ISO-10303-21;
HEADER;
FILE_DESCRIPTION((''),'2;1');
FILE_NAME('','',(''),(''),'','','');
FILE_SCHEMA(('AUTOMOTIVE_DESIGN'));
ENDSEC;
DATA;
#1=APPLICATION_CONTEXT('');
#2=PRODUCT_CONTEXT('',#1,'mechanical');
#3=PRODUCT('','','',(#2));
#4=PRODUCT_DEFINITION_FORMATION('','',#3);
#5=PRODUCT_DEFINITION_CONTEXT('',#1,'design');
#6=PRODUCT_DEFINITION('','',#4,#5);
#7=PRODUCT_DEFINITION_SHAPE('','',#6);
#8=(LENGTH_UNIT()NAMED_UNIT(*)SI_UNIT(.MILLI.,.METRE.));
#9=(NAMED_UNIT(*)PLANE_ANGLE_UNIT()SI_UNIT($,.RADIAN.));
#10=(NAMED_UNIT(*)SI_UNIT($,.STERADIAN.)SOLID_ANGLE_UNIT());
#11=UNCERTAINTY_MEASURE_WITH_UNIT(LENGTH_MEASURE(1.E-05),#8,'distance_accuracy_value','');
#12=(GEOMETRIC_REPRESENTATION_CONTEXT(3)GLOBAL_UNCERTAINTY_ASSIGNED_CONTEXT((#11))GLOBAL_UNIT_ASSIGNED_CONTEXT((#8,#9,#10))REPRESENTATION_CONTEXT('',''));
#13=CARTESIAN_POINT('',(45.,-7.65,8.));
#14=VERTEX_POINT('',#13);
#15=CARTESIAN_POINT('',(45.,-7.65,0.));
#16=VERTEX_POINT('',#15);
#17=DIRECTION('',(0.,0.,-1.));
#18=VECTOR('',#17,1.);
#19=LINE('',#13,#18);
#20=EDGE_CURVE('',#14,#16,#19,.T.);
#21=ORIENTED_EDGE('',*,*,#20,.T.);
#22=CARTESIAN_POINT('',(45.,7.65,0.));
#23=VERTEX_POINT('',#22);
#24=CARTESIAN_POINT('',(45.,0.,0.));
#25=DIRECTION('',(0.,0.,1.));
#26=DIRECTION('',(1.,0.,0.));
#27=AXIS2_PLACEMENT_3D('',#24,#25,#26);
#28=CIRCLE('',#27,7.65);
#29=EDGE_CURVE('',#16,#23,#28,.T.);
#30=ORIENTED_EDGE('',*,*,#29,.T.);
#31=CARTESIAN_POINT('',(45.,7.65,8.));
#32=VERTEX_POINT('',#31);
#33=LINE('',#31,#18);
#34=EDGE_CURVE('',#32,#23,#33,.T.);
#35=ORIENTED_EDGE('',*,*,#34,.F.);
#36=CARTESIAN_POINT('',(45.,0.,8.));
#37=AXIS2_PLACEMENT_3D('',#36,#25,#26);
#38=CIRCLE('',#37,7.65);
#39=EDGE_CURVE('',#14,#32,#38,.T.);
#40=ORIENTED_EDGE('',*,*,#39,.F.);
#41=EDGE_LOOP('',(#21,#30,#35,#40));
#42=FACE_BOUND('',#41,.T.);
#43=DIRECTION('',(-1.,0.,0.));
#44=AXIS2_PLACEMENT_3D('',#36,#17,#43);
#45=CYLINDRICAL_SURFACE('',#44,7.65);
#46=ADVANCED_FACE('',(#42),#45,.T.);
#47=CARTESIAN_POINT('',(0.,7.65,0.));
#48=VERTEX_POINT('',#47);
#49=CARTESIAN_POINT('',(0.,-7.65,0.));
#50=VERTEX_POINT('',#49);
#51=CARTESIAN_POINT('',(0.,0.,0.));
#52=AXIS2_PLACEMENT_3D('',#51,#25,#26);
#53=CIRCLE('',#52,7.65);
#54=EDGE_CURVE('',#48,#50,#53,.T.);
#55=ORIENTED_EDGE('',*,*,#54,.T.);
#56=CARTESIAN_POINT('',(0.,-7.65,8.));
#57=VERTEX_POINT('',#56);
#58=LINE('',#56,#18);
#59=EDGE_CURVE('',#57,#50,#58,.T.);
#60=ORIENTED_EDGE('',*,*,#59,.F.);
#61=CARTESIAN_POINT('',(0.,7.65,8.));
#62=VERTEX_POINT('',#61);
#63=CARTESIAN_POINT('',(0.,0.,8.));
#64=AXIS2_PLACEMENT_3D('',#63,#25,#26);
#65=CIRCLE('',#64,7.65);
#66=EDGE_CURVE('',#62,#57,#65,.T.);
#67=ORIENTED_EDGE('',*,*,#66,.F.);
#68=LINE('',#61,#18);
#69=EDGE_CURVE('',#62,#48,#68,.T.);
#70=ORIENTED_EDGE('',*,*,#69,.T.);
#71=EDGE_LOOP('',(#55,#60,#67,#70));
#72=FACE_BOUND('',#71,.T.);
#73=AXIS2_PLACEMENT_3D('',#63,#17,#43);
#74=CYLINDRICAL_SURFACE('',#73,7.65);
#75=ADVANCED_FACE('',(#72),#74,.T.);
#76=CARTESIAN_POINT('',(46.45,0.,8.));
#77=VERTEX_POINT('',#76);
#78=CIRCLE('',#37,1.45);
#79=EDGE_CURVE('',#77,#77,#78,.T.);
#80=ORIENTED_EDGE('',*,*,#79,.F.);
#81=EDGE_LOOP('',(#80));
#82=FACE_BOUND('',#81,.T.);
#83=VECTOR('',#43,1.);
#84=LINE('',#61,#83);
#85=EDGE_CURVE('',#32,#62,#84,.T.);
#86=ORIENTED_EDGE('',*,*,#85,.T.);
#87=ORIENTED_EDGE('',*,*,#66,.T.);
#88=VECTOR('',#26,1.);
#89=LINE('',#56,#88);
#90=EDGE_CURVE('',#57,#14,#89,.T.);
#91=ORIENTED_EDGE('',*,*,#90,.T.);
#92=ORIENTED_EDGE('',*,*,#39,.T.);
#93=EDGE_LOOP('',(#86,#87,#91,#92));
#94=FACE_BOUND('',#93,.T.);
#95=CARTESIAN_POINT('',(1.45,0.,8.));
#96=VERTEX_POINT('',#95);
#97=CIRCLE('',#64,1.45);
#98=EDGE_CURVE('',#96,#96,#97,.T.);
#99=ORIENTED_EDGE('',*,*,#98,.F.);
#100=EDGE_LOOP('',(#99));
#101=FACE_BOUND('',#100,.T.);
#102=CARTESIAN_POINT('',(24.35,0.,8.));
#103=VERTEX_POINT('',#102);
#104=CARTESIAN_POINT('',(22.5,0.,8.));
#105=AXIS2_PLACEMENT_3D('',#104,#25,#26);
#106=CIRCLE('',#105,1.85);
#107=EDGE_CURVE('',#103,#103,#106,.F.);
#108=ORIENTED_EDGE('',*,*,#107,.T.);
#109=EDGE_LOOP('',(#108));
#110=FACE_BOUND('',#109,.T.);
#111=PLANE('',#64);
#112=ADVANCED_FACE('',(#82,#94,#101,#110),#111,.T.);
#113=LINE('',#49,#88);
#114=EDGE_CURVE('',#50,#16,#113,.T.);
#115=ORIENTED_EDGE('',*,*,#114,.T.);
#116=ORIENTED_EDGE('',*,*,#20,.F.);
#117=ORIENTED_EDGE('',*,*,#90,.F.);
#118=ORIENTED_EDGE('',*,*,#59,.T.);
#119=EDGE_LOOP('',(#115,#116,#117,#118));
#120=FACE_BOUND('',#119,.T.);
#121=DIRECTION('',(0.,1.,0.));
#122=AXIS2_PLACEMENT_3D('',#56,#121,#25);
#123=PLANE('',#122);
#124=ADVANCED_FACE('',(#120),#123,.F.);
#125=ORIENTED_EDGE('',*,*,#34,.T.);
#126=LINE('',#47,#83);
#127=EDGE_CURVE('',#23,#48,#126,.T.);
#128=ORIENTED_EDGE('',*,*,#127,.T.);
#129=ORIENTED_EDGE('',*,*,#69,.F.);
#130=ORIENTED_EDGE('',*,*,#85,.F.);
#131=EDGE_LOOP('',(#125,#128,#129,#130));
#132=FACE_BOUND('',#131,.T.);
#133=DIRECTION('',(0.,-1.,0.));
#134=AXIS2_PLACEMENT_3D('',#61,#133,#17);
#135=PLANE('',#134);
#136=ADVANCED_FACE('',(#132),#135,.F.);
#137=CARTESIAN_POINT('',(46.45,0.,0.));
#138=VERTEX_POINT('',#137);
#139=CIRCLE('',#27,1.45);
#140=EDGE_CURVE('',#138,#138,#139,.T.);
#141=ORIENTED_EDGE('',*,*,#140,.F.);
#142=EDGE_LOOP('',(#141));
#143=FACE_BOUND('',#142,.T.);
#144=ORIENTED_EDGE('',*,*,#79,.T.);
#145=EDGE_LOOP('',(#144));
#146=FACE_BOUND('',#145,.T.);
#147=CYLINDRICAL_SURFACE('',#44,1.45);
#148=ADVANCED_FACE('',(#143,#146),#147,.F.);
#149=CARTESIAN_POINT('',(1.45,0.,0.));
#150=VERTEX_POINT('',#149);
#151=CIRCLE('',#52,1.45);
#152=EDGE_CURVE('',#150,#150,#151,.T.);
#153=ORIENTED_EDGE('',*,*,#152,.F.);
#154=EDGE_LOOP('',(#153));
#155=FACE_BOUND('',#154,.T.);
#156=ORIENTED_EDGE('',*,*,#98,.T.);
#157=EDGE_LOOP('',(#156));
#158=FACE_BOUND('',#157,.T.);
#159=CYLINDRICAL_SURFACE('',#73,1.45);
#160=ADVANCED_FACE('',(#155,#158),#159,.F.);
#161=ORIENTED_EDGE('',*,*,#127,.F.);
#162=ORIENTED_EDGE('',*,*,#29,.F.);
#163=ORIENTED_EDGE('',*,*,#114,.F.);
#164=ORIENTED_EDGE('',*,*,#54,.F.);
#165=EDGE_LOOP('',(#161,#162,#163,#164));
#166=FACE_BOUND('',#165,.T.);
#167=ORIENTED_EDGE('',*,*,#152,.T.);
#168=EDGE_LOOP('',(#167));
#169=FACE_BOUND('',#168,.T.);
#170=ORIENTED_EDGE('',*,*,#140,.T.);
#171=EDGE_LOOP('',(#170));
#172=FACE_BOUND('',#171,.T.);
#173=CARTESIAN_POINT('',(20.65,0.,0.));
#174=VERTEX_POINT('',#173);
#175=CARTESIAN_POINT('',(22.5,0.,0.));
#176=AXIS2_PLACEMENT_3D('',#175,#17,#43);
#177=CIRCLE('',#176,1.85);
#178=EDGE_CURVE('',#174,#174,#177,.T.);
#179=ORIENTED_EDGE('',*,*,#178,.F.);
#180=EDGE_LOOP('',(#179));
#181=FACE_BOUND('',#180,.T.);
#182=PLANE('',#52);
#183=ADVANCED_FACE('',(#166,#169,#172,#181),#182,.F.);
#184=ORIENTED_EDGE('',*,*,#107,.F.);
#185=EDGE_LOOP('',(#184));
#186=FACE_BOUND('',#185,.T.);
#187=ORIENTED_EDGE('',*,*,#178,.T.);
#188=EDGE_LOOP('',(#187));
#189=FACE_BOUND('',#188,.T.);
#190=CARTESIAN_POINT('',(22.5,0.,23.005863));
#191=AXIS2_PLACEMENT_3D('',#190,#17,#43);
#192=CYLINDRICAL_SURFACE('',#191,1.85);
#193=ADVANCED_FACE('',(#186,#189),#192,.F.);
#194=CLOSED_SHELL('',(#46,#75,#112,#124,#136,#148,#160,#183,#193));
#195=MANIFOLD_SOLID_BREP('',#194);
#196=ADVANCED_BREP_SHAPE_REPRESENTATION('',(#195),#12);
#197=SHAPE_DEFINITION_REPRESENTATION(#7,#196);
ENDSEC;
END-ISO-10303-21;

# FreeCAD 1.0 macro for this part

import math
import FreeCAD as App
import Part
import Sketcher
from FreeCAD import Vector

doc = App.newDocument("Part")
body = doc.addObject("PartDesign::Body", "Body")

# Sketch on XY plane
sketch1 = body.newObject("Sketcher::SketchObject", "Sketch")
sketch1.AttachmentSupport = (doc.getObject("XY_Plane"), [""])
sketch1.MapMode = "FlatFace"
sketch1.addGeometry([
    Part.LineSegment(Vector(45, 7.65, 0), Vector(0, 7.65, 0)),  # 0
    Part.ArcOfCircle(Part.Circle(Vector(0, 0, 0), Vector(0, 0, 1), 7.65), math.radians(90), math.radians(270)),  # 1
    Part.LineSegment(Vector(0, -7.65, 0), Vector(45, -7.65, 0)),  # 2
    Part.ArcOfCircle(Part.Circle(Vector(45, 0, 0), Vector(0, 0, 1), 7.65), math.radians(-90), math.radians(90)),  # 3
    Part.Circle(Vector(45, 0, 0), Vector(0, 0, 1), 1.45),  # 4
    Part.Circle(Vector(22.5, 0, 0), Vector(0, 0, 1), 5.15),  # 5
    Part.Circle(Vector(0, 0, 0), Vector(0, 0, 1), 1.45),  # 6
], False)
sketch1.addConstraint([
    Sketcher.Constraint("Tangent", 0, 2, 1, 1),
    Sketcher.Constraint("Tangent", 1, 2, 2, 1),
    Sketcher.Constraint("Tangent", 2, 2, 3, 1),
    Sketcher.Constraint("Tangent", 3, 2, 0, 1),
    Sketcher.Constraint("Horizontal", 0),
    Sketcher.Constraint("Horizontal", 2),
    Sketcher.Constraint("Coincident", 1, 3, -1, 1),
    Sketcher.Constraint("Coincident", 6, 3, -1, 1),
    Sketcher.Constraint("Coincident", 4, 3, 3, 3),
    Sketcher.Constraint("Equal", 4, 6),
    Sketcher.Constraint("PointOnObject", 5, 3, -1),
    Sketcher.Constraint("Diameter", 4, 2.9),
    Sketcher.Constraint("Diameter", 5, 10.3),
    Sketcher.Constraint("DistanceX", 0, 2, 0, 1, 45.0),
    Sketcher.Constraint("Radius", 1, 7.65),
    Sketcher.Constraint("DistanceX", -1, 1, 5, 3, 22.5),
])
pad1 = body.newObject("PartDesign::Pad", "Pad")
pad1.Profile = sketch1
pad1.Length = 8

# Sketch on XY plane
sketch2 = body.newObject("Sketcher::SketchObject", "Sketch001")
sketch2.AttachmentSupport = (doc.getObject("XY_Plane"), [""])
sketch2.MapMode = "FlatFace"
sketch2.addGeometry([
    Part.Circle(Vector(22.5, 0, 0), Vector(0, 0, 1), 5.305374),
    Part.Circle(Vector(22.5, 0, 0), Vector(0, 0, 1), 1.85),
], False)
sketch2.addConstraint([
    Sketcher.Constraint("Coincident", 1, 3, 0, 3),
    Sketcher.Constraint("PointOnObject", 0, 3, -1),
    Sketcher.Constraint("Diameter", 1, 3.7),
    Sketcher.Constraint("DistanceX", -1, 1, 0, 3, 22.5),
    Sketcher.Constraint("Diameter", 0, 10.610748),
])
pad2 = body.newObject("PartDesign::Pad", "Pad001")
pad2.Profile = sketch2
pad2.Length = 8

doc.recompute()
